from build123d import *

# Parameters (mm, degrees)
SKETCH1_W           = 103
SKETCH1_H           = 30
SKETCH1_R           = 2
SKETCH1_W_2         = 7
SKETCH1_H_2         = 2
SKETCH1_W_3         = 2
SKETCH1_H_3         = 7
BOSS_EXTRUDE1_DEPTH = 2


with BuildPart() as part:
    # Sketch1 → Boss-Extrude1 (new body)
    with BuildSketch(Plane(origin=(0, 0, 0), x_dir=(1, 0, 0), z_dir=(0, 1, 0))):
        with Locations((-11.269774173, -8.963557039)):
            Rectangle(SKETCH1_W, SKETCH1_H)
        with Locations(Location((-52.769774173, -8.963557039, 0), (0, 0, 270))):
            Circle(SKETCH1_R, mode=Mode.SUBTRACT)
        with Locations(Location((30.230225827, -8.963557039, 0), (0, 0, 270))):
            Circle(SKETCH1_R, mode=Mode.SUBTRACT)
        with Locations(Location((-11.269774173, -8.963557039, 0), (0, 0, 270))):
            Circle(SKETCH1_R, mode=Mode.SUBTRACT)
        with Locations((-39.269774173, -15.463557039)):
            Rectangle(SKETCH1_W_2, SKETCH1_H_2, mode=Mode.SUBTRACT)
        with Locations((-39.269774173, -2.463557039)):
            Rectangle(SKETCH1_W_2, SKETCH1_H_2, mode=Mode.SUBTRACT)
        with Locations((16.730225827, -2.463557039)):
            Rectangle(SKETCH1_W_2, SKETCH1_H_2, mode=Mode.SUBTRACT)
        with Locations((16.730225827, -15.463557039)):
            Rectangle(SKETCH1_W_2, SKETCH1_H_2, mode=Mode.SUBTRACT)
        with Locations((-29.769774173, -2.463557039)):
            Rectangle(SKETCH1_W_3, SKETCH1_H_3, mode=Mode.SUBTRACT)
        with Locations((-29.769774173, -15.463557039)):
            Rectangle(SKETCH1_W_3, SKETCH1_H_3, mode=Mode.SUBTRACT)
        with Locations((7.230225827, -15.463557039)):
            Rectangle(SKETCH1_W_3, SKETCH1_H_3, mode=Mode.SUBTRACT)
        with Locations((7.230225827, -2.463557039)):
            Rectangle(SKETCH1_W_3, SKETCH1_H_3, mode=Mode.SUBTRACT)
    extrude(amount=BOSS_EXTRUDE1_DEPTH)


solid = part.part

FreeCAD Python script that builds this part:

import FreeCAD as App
import Part
import Sketcher


def add_polygon(sketch, points):
    """Adds a closed chain of lines whose ends are joined by coincident constraints."""
    first, n = sketch.GeometryCount, len(points)
    for a, b in zip(points, points[1:] + points[:1]):
        sketch.addGeometry(Part.LineSegment(App.Vector(*a, 0), App.Vector(*b, 0)), False)
    for i in range(n):
        sketch.addConstraint(Sketcher.Constraint("Coincident", first + i, 2, first + (i + 1) % n, 1))

doc = App.newDocument("Part")
body = doc.addObject("PartDesign::Body", "Body")

sketch1 = body.newObject("Sketcher::SketchObject", "Sketch")
sketch1.AttachmentSupport = (doc.getObject("XZ_Plane"), [""])
sketch1.MapMode = "FlatFace"
add_polygon(sketch1, [(-62.769774, -6.036443), (-62.769774, 23.963557), (40.230226, 23.963557), (40.230226, -6.036443)])
add_polygon(sketch1, [(-35.769774, 16.463557), (-42.769774, 16.463557), (-42.769774, 14.463557), (-35.769774, 14.463557)])
add_polygon(sketch1, [(-28.769774, 18.963557), (-30.769774, 18.963557), (-30.769774, 11.963557), (-28.769774, 11.963557)])
add_polygon(sketch1, [(8.230226, 18.963557), (6.230226, 18.963557), (6.230226, 11.963557), (8.230226, 11.963557)])
add_polygon(sketch1, [(20.230226, 16.463557), (13.230226, 16.463557), (13.230226, 14.463557), (20.230226, 14.463557)])
sketch1.addGeometry(Part.Circle(App.Vector(-52.769774, 8.963557, 0), App.Vector(0, 0, 1), 2), False)
add_polygon(sketch1, [(-35.769774, 3.463557), (-42.769774, 3.463557), (-42.769774, 1.463557), (-35.769774, 1.463557)])
add_polygon(sketch1, [(-28.769774, 5.963557), (-30.769774, 5.963557), (-30.769774, -1.036443), (-28.769774, -1.036443)])
sketch1.addGeometry(Part.Circle(App.Vector(-11.269774, 8.963557, 0), App.Vector(0, 0, 1), 2), False)
sketch1.addGeometry(Part.Circle(App.Vector(30.230226, 8.963557, 0), App.Vector(0, 0, 1), 2), False)
add_polygon(sketch1, [(8.230226, 5.963557), (6.230226, 5.963557), (6.230226, -1.036443), (8.230226, -1.036443)])
add_polygon(sketch1, [(20.230226, 3.463557), (13.230226, 3.463557), (13.230226, 1.463557), (20.230226, 1.463557)])
sketch1.addConstraint(Sketcher.Constraint("Vertical", 0))
sketch1.addConstraint(Sketcher.Constraint("Horizontal", 1))
sketch1.addConstraint(Sketcher.Constraint("Vertical", 2))
sketch1.addConstraint(Sketcher.Constraint("Horizontal", 3))
sketch1.addConstraint(Sketcher.Constraint("Horizontal", 4))
sketch1.addConstraint(Sketcher.Constraint("Vertical", 5))
sketch1.addConstraint(Sketcher.Constraint("Horizontal", 6))
sketch1.addConstraint(Sketcher.Constraint("Vertical", 7))
sketch1.addConstraint(Sketcher.Constraint("Horizontal", 8))
sketch1.addConstraint(Sketcher.Constraint("Vertical", 9))
sketch1.addConstraint(Sketcher.Constraint("Horizontal", 10))
sketch1.addConstraint(Sketcher.Constraint("Vertical", 11))
sketch1.addConstraint(Sketcher.Constraint("Horizontal", 12))
sketch1.addConstraint(Sketcher.Constraint("Vertical", 13))
sketch1.addConstraint(Sketcher.Constraint("Horizontal", 14))
sketch1.addConstraint(Sketcher.Constraint("Vertical", 15))
sketch1.addConstraint(Sketcher.Constraint("Horizontal", 16))
sketch1.addConstraint(Sketcher.Constraint("Vertical", 17))
sketch1.addConstraint(Sketcher.Constraint("Horizontal", 18))
sketch1.addConstraint(Sketcher.Constraint("Vertical", 19))
sketch1.addConstraint(Sketcher.Constraint("Horizontal", 21))
sketch1.addConstraint(Sketcher.Constraint("Vertical", 22))
sketch1.addConstraint(Sketcher.Constraint("Horizontal", 23))
sketch1.addConstraint(Sketcher.Constraint("Vertical", 24))
sketch1.addConstraint(Sketcher.Constraint("Horizontal", 25))
sketch1.addConstraint(Sketcher.Constraint("Vertical", 26))
sketch1.addConstraint(Sketcher.Constraint("Horizontal", 27))
sketch1.addConstraint(Sketcher.Constraint("Vertical", 28))
sketch1.addConstraint(Sketcher.Constraint("Horizontal", 31))
sketch1.addConstraint(Sketcher.Constraint("Vertical", 32))
sketch1.addConstraint(Sketcher.Constraint("Horizontal", 33))
sketch1.addConstraint(Sketcher.Constraint("Vertical", 34))
sketch1.addConstraint(Sketcher.Constraint("Horizontal", 35))
sketch1.addConstraint(Sketcher.Constraint("Vertical", 36))
sketch1.addConstraint(Sketcher.Constraint("Horizontal", 37))
sketch1.addConstraint(Sketcher.Constraint("Vertical", 38))
sketch1.addConstraint(Sketcher.Constraint("Equal", 20, 29))
sketch1.addConstraint(Sketcher.Constraint("Equal", 29, 30))
sketch1.addConstraint(Sketcher.Constraint("Horizontal", 20, 3, 29, 3))
sketch1.addConstraint(Sketcher.Constraint("Horizontal", 29, 3, 30, 3))
sketch1.addConstraint(Sketcher.Constraint("Horizontal", 11, 2, 12, 2))
sketch1.addConstraint(Sketcher.Constraint("Horizontal", 10, 2, 13, 2))
sketch1.addConstraint(Sketcher.Constraint("Horizontal", 7, 2, 16, 2))
sketch1.addConstraint(Sketcher.Constraint("Horizontal", 6, 2, 17, 2))
sketch1.addConstraint(Sketcher.Constraint("Horizontal", 28, 2, 31, 2))
sketch1.addConstraint(Sketcher.Constraint("Horizontal", 27, 2, 32, 2))
sketch1.addConstraint(Sketcher.Constraint("Horizontal", 24, 2, 35, 2))
sketch1.addConstraint(Sketcher.Constraint("Horizontal", 23, 2, 36, 2))
sketch1.addConstraint(Sketcher.Constraint("Vertical", 5, 2, 21, 2))
sketch1.addConstraint(Sketcher.Constraint("Vertical", 7, 2, 23, 2))
sketch1.addConstraint(Sketcher.Constraint("Vertical", 9, 2, 25, 2))
sketch1.addConstraint(Sketcher.Constraint("Vertical", 11, 2, 27, 2))
sketch1.addConstraint(Sketcher.Constraint("Vertical", 13, 2, 31, 2))
sketch1.addConstraint(Sketcher.Constraint("Vertical", 15, 2, 33, 2))
sketch1.addConstraint(Sketcher.Constraint("Vertical", 17, 2, 35, 2))
sketch1.addConstraint(Sketcher.Constraint("Vertical", 19, 2, 37, 2))
sketch1.addConstraint(Sketcher.Constraint("Equal", 10, 12))
sketch1.addConstraint(Sketcher.Constraint("Equal", 6, 16))
sketch1.addConstraint(Sketcher.Constraint("Equal", 33, 5))
sketch1.addConstraint(Sketcher.Constraint("Equal", 37, 9))
sketch1.addConstraint(Sketcher.Constraint("Equal", 19, 22))
sketch1.addConstraint(Sketcher.Constraint("Equal", 15, 26))
sketch1.addConstraint(Sketcher.Constraint("Diameter", 20, 4.0))
sketch1.addConstraint(Sketcher.Constraint("DistanceX", 1, 1, 1, 2, 103.0))
sketch1.addConstraint(Sketcher.Constraint("DistanceX", 4, 2, 4, 1, 7.0))
sketch1.addConstraint(Sketcher.Constraint("DistanceX", 8, 2, 8, 1, 2.0))
sketch1.addConstraint(Sketcher.Constraint("DistanceY", 0, 1, 0, 2, 30.0))
sketch1.addConstraint(Sketcher.Constraint("DistanceX", 20, 3, 30, 3, 83.0))
sketch1.addConstraint(Sketcher.Constraint("DistanceX", 0, 2, 20, 3, 10.0))
sketch1.addConstraint(Sketcher.Constraint("DistanceY", 20, 3, 0, 2, 15.0))
sketch1.addConstraint(Sketcher.Constraint("DistanceX", 20, 3, 4, 2, 10.0))
sketch1.addConstraint(Sketcher.Constraint("DistanceX", 7, 2, 8, 2, 5.0))
sketch1.addConstraint(Sketcher.Constraint("DistanceY", 29, 3, 8, 2, 10.0))
sketch1.addConstraint(Sketcher.Constraint("DistanceX", 12, 2, 30, 3, 24.0))
sketch1.addConstraint(Sketcher.Constraint("DistanceX", 15, 2, 16, 2, 5.0))
sketch1.addConstraint(Sketcher.Constraint("DistanceY", 21, 2, 5, 2, 11.0))
sketch1.addConstraint(Sketcher.Constraint("DistanceY", 25, 2, 9, 2, 6.0))
sketch1.addConstraint(Sketcher.Constraint("DistanceX", 20, 3, 29, 3, 41.5))
sketch1.addConstraint(Sketcher.Constraint("DistanceY", 20, 3, 4, 2, 7.5))
sketch1.addConstraint(Sketcher.Constraint("DistanceX", 20, 3, -1, 1, 52.769774))
sketch1.addConstraint(Sketcher.Constraint("DistanceY", -1, 1, 20, 3, 8.963557))
pad1 = body.newObject("PartDesign::Pad", "Pad")
pad1.Profile = sketch1
pad1.Length = 2
pad1.Reversed = True

doc.recompute()
